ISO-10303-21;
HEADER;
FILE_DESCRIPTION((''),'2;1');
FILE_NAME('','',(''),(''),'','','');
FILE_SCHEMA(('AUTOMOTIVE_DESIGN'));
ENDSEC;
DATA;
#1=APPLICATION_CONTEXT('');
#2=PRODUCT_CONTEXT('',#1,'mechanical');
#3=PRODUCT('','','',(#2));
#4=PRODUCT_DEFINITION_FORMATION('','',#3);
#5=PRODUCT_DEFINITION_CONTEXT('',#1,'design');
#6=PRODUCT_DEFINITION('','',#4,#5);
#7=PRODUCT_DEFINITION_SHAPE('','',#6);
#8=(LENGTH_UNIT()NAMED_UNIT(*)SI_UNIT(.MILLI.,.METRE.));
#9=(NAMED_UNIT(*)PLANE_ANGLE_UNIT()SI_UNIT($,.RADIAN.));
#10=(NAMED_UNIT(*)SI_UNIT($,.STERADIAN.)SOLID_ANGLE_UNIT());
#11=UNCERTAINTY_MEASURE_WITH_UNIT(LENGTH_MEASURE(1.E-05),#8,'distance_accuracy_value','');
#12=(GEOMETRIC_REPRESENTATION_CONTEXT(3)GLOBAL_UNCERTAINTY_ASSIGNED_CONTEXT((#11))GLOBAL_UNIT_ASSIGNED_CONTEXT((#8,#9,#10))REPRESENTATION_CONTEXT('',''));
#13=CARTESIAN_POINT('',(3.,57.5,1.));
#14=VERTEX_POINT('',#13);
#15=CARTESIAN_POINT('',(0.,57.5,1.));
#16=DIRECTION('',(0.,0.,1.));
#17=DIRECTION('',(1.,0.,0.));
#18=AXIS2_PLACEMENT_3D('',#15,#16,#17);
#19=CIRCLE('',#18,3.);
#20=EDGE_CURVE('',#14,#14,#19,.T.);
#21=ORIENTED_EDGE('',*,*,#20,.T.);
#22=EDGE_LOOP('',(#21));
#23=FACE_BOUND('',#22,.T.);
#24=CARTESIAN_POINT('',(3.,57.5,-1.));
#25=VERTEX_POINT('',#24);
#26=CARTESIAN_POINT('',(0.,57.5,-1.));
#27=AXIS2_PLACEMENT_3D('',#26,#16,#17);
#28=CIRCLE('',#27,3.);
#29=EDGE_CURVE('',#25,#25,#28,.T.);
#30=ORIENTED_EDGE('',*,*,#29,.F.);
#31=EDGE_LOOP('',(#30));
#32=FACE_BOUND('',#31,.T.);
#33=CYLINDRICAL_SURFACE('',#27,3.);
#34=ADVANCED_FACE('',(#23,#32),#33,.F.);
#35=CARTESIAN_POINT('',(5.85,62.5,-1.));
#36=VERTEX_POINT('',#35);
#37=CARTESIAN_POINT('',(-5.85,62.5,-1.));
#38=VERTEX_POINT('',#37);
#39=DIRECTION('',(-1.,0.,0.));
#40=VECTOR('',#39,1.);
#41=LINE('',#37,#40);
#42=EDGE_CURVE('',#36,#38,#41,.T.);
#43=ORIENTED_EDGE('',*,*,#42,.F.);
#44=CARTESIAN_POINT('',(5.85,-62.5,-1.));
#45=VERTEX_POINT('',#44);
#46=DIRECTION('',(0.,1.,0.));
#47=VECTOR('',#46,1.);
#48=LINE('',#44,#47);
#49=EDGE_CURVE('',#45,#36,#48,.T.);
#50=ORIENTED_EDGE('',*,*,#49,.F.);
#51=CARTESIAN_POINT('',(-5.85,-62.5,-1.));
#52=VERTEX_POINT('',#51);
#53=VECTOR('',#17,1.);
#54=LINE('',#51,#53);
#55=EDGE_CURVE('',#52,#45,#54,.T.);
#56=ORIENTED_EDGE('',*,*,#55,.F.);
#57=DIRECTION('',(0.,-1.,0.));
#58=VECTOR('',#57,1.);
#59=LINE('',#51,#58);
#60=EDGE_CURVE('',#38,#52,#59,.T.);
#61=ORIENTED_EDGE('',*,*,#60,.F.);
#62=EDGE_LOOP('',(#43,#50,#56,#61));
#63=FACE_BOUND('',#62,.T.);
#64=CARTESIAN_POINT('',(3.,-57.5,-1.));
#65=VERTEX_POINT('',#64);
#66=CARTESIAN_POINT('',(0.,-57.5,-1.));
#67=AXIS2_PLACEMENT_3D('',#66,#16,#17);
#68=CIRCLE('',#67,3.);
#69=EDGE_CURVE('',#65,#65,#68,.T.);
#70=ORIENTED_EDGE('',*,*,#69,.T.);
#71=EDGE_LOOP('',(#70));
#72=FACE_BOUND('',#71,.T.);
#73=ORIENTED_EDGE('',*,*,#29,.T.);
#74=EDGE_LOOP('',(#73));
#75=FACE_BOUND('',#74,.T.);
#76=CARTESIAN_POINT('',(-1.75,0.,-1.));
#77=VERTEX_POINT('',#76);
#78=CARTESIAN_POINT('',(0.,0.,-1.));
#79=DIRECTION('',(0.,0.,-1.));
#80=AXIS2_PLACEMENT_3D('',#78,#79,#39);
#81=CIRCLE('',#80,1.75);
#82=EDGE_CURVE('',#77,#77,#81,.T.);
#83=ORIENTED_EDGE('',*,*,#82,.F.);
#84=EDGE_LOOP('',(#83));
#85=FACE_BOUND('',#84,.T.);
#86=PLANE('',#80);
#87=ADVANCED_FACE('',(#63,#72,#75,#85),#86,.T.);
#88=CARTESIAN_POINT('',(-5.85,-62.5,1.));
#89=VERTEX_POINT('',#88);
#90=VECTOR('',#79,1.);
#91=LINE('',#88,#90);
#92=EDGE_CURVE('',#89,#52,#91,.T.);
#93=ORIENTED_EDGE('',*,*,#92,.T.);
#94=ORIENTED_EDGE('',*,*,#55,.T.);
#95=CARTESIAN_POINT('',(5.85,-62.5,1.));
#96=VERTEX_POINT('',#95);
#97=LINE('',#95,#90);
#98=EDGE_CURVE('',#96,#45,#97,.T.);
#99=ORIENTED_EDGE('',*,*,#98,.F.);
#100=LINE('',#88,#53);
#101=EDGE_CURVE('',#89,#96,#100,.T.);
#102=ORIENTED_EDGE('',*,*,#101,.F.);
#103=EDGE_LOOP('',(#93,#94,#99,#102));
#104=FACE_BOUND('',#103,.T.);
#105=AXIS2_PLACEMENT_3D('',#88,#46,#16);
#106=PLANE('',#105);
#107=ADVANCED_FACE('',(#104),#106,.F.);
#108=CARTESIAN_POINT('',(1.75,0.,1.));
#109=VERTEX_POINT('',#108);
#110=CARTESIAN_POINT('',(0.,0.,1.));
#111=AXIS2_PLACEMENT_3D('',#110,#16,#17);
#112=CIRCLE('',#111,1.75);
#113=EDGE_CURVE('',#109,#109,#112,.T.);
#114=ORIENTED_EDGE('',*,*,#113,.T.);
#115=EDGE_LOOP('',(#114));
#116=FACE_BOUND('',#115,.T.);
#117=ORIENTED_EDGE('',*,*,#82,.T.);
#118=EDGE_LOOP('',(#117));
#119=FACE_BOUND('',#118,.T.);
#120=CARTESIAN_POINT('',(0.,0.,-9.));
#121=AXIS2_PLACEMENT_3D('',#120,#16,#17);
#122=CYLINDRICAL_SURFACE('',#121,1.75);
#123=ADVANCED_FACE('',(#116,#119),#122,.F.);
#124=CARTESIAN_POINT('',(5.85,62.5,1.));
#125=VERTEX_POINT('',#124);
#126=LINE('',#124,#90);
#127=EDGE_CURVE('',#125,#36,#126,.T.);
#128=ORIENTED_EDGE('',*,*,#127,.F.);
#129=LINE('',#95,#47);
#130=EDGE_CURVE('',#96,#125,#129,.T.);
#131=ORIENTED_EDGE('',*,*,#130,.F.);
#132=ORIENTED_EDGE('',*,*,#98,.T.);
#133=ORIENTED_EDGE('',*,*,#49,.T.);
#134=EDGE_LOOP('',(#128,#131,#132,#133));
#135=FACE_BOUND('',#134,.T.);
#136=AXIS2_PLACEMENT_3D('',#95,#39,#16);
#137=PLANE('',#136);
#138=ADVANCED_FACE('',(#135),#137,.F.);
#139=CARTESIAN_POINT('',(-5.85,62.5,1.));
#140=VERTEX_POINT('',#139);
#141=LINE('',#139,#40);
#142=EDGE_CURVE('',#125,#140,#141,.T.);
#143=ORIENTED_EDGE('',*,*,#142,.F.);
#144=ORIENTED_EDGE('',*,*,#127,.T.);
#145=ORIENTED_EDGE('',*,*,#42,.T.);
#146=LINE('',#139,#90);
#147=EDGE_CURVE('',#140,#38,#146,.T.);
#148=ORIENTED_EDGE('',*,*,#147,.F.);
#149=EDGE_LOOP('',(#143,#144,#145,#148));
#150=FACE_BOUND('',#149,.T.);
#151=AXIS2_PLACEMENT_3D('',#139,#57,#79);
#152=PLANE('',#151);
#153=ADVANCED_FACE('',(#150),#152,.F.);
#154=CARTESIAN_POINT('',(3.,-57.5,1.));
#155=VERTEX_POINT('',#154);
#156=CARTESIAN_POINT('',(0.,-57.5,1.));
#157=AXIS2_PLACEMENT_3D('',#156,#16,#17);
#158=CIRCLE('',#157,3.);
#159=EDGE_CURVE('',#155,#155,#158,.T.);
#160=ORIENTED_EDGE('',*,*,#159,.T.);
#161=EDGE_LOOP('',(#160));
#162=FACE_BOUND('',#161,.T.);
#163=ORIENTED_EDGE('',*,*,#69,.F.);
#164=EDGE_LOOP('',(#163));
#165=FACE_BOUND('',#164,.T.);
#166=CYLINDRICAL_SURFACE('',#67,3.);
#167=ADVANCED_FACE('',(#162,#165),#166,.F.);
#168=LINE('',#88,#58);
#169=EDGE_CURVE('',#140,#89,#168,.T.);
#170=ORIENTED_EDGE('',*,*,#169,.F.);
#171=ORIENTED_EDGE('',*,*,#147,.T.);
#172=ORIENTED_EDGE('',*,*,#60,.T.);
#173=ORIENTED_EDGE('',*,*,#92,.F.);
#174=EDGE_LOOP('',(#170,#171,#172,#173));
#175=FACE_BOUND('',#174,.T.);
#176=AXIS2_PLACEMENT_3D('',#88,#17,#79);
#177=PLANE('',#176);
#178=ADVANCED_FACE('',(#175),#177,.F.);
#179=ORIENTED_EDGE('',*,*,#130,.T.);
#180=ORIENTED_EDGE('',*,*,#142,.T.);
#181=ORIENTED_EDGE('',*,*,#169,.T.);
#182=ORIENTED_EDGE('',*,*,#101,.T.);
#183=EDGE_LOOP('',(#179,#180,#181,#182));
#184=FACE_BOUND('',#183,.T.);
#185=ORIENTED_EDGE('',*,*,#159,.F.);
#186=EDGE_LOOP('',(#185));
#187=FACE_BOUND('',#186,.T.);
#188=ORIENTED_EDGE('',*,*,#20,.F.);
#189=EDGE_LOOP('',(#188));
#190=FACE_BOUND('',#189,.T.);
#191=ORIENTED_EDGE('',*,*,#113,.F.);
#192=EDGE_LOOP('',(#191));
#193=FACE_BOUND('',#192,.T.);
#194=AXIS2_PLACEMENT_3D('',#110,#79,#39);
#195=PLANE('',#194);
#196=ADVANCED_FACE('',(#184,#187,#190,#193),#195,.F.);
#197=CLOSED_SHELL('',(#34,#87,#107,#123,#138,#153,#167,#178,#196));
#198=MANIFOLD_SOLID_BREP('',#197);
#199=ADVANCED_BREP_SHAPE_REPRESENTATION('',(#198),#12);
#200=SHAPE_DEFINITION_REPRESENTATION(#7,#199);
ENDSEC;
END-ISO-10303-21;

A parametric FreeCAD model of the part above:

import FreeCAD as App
import Part
import Sketcher

V = App.Vector
Q = App.Units.Quantity


def add_polygon(sketch, points):
    """Adds a closed chain of lines whose ends are joined by coincident constraints."""
    first, n = sketch.GeometryCount, len(points)
    for a, b in zip(points, points[1:] + points[:1]):
        sketch.addGeometry(Part.LineSegment(App.Vector(*a, 0), App.Vector(*b, 0)), False)
    for i in range(n):
        sketch.addConstraint(Sketcher.Constraint("Coincident", first + i, 2, first + (i + 1) % n, 1))

doc = App.newDocument("Part")
body = doc.addObject("PartDesign::Body", "Body")

# Sketch on XY plane
sketch1 = body.newObject("Sketcher::SketchObject", "Sketch")
sketch1.AttachmentSupport = (doc.getObject("XY_Plane"), [""])
sketch1.MapMode = "FlatFace"
add_polygon(sketch1, [(-6, 62), (-6, -62), (6, -62), (6, 62)])  # lines 0-3
sketch1.addConstraint([
    Sketcher.Constraint("Vertical", 0),
    Sketcher.Constraint("Horizontal", 1),
    Sketcher.Constraint("Vertical", 2),
    Sketcher.Constraint("Horizontal", 3),
    Sketcher.Constraint("Symmetric", 0, 2, 2, 2, -1, 1),
    Sketcher.Constraint("DistanceY", 0, 2, 0, 1, Q("125 mm")),
    Sketcher.Constraint("DistanceX", 1, 1, 1, 2, Q("11.7 mm")),
])
pad1 = body.newObject("PartDesign::Pad", "Pad")
pad1.Profile = sketch1
pad1.Length = 2
pad1.Midplane = True

# Sketch on XY plane
sketch2 = body.newObject("Sketcher::SketchObject", "Sketch001")
sketch2.AttachmentSupport = (doc.getObject("XY_Plane"), [""])
sketch2.MapMode = "FlatFace"
sketch2.AttachmentOffset = App.Placement(V(0, 0, 1), App.Rotation())
sketch2.addGeometry([
    Part.Circle(V(0, 57.5, 0), V(0, 0, 1), 3),
    Part.Circle(V(0, -57.5, 0), V(0, 0, 1), 3),
], False)
sketch2.addConstraint([
    Sketcher.Constraint("Equal", 0, 1),
    Sketcher.Constraint("Symmetric", 0, 3, 1, 3, -1, 1),
    Sketcher.Constraint("PointOnObject", 0, 3, -2),
    Sketcher.Constraint("Diameter", 0, Q("6 mm")),
    Sketcher.Constraint("DistanceY", 1, 3, 0, 3, Q("115 mm")),
])
pocket1 = body.newObject("PartDesign::Pocket", "Pocket")
pocket1.Profile = sketch2
pocket1.Type = "ThroughAll"

# Sketch on XY plane
sketch3 = body.newObject("Sketcher::SketchObject", "Sketch002")
sketch3.AttachmentSupport = (doc.getObject("XY_Plane"), [""])
sketch3.MapMode = "FlatFace"
sketch3.AttachmentOffset = App.Placement(V(0, 0, 1), App.Rotation())
sketch3.addGeometry(Part.Circle(V(0, 0, 0), V(0, 0, 1), 1.8), False)
sketch3.addConstraint([
    Sketcher.Constraint("Coincident", 0, 3, -1, 1),
    Sketcher.Constraint("Diameter", 0, Q("3.5 mm")),
])
pocket2 = body.newObject("PartDesign::Pocket", "Pocket001")
pocket2.Profile = sketch3
pocket2.Length = 10

doc.recompute()
